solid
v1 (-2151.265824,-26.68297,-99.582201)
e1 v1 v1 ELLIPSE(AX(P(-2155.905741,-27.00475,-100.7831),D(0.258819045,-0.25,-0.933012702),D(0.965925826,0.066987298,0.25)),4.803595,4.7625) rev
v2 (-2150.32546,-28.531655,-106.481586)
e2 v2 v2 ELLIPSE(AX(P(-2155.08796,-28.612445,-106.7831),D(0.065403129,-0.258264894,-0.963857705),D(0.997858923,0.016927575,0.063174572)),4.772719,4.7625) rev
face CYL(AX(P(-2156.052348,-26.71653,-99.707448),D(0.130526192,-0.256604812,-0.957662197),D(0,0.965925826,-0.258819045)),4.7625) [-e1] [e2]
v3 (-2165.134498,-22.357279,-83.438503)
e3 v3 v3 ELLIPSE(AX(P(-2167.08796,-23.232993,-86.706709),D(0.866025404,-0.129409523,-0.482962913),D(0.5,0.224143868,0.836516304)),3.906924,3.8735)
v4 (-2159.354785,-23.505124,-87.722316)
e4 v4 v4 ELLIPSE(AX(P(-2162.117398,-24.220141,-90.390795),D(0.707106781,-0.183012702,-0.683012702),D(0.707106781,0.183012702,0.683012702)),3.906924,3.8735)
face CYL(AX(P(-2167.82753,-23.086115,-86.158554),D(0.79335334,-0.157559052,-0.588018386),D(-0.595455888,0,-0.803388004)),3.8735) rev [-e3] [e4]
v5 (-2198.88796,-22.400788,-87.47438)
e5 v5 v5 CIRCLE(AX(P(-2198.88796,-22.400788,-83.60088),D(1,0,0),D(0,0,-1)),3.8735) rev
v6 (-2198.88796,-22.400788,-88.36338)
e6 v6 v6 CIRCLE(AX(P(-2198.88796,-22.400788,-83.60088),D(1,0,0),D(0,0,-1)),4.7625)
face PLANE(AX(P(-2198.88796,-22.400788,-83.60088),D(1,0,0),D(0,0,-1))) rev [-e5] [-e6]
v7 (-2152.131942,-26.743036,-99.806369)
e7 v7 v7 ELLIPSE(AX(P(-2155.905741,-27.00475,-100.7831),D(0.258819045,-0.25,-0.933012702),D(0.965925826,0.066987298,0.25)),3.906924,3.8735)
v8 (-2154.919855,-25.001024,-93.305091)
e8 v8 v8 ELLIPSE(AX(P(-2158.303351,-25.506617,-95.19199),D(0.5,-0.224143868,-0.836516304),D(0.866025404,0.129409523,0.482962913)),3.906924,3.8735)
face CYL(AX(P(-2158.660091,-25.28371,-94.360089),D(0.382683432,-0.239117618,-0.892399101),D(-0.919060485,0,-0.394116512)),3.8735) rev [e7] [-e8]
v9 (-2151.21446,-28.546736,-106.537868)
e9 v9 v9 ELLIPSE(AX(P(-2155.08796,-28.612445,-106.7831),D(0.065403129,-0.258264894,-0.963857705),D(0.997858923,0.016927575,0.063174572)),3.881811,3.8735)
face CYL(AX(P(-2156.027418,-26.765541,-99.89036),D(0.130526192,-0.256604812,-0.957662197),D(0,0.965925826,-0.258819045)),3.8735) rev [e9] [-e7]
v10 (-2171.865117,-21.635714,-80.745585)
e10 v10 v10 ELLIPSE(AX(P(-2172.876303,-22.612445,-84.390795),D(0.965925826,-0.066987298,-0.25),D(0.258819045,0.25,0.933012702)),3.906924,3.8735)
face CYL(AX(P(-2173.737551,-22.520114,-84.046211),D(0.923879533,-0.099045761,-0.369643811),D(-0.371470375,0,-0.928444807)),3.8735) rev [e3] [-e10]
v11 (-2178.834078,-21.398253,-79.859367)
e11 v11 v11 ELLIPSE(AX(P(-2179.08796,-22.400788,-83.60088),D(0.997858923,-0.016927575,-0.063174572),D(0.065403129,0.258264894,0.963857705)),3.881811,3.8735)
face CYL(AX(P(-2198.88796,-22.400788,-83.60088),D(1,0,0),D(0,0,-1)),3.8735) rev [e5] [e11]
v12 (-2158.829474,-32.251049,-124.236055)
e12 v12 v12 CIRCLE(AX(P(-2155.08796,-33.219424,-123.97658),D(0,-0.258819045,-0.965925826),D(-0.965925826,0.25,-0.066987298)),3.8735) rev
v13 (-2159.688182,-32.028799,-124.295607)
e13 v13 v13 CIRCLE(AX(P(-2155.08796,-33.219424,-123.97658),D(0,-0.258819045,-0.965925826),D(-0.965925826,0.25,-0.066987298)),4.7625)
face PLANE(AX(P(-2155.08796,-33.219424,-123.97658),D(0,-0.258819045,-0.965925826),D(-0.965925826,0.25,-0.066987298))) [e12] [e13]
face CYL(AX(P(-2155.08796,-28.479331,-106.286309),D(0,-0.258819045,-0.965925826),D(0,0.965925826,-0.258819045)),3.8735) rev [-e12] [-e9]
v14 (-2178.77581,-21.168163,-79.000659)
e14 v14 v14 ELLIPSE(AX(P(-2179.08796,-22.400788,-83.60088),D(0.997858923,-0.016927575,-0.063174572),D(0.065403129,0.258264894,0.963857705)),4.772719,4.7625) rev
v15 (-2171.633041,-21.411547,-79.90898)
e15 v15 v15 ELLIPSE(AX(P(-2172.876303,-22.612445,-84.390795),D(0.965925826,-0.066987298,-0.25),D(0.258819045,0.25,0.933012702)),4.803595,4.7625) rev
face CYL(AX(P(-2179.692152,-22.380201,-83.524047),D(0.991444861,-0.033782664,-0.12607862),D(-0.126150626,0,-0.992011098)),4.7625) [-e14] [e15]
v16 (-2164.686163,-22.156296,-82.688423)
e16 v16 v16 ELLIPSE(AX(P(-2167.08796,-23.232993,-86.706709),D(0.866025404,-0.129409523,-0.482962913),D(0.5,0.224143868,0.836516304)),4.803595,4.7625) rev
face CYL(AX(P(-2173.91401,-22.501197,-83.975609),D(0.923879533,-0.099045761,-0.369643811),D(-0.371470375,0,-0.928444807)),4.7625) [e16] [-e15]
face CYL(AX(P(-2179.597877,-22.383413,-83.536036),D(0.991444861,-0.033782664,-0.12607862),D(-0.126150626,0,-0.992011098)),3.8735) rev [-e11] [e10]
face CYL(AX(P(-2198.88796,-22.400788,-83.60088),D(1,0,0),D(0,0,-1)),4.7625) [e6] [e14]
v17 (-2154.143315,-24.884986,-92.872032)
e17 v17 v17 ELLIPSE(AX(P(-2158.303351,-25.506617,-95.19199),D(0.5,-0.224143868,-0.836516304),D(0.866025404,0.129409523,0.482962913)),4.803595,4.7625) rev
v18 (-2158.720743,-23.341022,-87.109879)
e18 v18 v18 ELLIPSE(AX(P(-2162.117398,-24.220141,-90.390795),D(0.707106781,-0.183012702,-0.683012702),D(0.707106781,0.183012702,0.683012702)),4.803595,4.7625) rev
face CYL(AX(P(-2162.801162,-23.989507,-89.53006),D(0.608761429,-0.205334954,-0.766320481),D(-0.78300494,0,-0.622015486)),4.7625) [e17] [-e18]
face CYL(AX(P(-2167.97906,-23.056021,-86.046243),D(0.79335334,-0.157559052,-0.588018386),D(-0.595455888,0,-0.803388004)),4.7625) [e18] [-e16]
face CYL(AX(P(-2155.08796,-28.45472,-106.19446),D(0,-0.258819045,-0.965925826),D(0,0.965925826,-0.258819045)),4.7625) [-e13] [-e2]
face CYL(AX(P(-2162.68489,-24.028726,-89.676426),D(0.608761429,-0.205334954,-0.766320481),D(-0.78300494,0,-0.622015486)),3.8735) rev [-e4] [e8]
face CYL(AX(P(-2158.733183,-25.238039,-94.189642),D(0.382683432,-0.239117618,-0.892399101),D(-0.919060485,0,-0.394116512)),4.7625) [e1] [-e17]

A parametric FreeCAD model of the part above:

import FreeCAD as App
import Part
import Sketcher
from FreeCAD import Vector
Q = App.Units.Quantity

doc = App.newDocument("Part")
body = doc.addObject("PartDesign::Body", "Body")

sketch1 = body.newObject("Sketcher::SketchObject", "Sketch")
sketch1.AttachmentSupport = (doc.getObject("YZ_Plane"), [""])
sketch1.MapMode = "FlatFace"
sketch1.AttachmentOffset = App.Placement(Vector(0, 0, -2198.88796), App.Rotation())
sketch1.addGeometry([
    Part.Circle(Vector(-22.4, -83.6, 0), Vector(0, 0, 1), 4.8),
    Part.Circle(Vector(-22.4, -83.6, 0), Vector(0, 0, 1), 3.9),
], False)
sketch1.addConstraint([
    Sketcher.Constraint("Coincident", 1, 3, 0, 3),
    Sketcher.Constraint("Diameter", 0, Q("9.525 mm")),
    Sketcher.Constraint("Diameter", 1, Q("7.747 mm")),
    Sketcher.Constraint("DistanceX", 0, 3, -1, 1, Q("22.400788 mm")),
    Sketcher.Constraint("DistanceY", 0, 3, -1, 1, Q("83.60088 mm")),
])

sketch2 = body.newObject("Sketcher::SketchObject", "Sketch001")
sketch2.Placement = App.Placement(Vector(0, 0, 0), App.Rotation(Vector(0, 0.258819045, 0.965925826), Vector(0.999999999, 0, 0), Vector(0, 0.965925826, -0.258819045), "ZXY"))
sketch2.addGeometry([
    Part.LineSegment(Vector(-87, -2199, 0), Vector(-87, -2179, 0)),
    Part.LineSegment(Vector(-87, -2179, 0), Vector(-87, -2173, 0)),
    Part.LineSegment(Vector(-87, -2173, 0), Vector(-90, -2167, 0)),
    Part.LineSegment(Vector(-90, -2167, 0), Vector(-94, -2162, 0)),
    Part.LineSegment(Vector(-94, -2162, 0), Vector(-99, -2158, 0)),
    Part.LineSegment(Vector(-99, -2158, 0), Vector(-104, -2156, 0)),
    Part.LineSegment(Vector(-104, -2156, 0), Vector(-111, -2155, 0)),
    Part.LineSegment(Vector(-111, -2155, 0), Vector(-128, -2155, 0)),
], False)
sketch2.addConstraint([
    Sketcher.Constraint("Coincident", 0, 2, 1, 1),
    Sketcher.Constraint("Coincident", 1, 2, 2, 1),
    Sketcher.Constraint("Coincident", 2, 2, 3, 1),
    Sketcher.Constraint("Coincident", 3, 2, 4, 1),
    Sketcher.Constraint("Coincident", 4, 2, 5, 1),
    Sketcher.Constraint("Coincident", 5, 2, 6, 1),
    Sketcher.Constraint("Coincident", 6, 2, 7, 1),
    Sketcher.Constraint("Vertical", 0),
    Sketcher.Constraint("Horizontal", 7),
    Sketcher.Constraint("Equal", 1, 2),
    Sketcher.Constraint("Equal", 2, 3),
    Sketcher.Constraint("Equal", 3, 4),
    Sketcher.Constraint("Equal", 4, 5),
    Sketcher.Constraint("Equal", 5, 6),
    Sketcher.Constraint("DistanceX", 7, 2, 7, 1, Q("17.8 mm")),
    Sketcher.Constraint("DistanceY", 0, 1, 0, 2, Q("19.8 mm")),
    Sketcher.Constraint("Angle", 1, Q("97.5 deg")),
    Sketcher.Constraint("Angle", 2, Q("112.5 deg")),
    Sketcher.Constraint("Angle", 3, Q("127.5 deg")),
    Sketcher.Constraint("Angle", 4, Q("142.5 deg")),
    Sketcher.Constraint("Angle", 5, Q("157.5 deg")),
    Sketcher.Constraint("Angle", 6, Q("172.5 deg")),
    Sketcher.Constraint("DistanceY", 0, 2, 2, 2, Q("12 mm")),
    Sketcher.Constraint("DistanceX", 0, 1, -1, 1, Q("86.55 mm")),
    Sketcher.Constraint("DistanceY", 1, 2, -1, 1, Q("2172.876301 mm")),
])
doc.recompute()

additivepipe = body.newObject("PartDesign::AdditivePipe", "AdditivePipe")
additivepipe.Profile = sketch1
additivepipe.Spine = (sketch2, ["Edge1", "Edge2", "Edge3", "Edge4", "Edge5", "Edge6", "Edge7", "Edge8"])
additivepipe.Transition = "Right corner"

doc.recompute()
